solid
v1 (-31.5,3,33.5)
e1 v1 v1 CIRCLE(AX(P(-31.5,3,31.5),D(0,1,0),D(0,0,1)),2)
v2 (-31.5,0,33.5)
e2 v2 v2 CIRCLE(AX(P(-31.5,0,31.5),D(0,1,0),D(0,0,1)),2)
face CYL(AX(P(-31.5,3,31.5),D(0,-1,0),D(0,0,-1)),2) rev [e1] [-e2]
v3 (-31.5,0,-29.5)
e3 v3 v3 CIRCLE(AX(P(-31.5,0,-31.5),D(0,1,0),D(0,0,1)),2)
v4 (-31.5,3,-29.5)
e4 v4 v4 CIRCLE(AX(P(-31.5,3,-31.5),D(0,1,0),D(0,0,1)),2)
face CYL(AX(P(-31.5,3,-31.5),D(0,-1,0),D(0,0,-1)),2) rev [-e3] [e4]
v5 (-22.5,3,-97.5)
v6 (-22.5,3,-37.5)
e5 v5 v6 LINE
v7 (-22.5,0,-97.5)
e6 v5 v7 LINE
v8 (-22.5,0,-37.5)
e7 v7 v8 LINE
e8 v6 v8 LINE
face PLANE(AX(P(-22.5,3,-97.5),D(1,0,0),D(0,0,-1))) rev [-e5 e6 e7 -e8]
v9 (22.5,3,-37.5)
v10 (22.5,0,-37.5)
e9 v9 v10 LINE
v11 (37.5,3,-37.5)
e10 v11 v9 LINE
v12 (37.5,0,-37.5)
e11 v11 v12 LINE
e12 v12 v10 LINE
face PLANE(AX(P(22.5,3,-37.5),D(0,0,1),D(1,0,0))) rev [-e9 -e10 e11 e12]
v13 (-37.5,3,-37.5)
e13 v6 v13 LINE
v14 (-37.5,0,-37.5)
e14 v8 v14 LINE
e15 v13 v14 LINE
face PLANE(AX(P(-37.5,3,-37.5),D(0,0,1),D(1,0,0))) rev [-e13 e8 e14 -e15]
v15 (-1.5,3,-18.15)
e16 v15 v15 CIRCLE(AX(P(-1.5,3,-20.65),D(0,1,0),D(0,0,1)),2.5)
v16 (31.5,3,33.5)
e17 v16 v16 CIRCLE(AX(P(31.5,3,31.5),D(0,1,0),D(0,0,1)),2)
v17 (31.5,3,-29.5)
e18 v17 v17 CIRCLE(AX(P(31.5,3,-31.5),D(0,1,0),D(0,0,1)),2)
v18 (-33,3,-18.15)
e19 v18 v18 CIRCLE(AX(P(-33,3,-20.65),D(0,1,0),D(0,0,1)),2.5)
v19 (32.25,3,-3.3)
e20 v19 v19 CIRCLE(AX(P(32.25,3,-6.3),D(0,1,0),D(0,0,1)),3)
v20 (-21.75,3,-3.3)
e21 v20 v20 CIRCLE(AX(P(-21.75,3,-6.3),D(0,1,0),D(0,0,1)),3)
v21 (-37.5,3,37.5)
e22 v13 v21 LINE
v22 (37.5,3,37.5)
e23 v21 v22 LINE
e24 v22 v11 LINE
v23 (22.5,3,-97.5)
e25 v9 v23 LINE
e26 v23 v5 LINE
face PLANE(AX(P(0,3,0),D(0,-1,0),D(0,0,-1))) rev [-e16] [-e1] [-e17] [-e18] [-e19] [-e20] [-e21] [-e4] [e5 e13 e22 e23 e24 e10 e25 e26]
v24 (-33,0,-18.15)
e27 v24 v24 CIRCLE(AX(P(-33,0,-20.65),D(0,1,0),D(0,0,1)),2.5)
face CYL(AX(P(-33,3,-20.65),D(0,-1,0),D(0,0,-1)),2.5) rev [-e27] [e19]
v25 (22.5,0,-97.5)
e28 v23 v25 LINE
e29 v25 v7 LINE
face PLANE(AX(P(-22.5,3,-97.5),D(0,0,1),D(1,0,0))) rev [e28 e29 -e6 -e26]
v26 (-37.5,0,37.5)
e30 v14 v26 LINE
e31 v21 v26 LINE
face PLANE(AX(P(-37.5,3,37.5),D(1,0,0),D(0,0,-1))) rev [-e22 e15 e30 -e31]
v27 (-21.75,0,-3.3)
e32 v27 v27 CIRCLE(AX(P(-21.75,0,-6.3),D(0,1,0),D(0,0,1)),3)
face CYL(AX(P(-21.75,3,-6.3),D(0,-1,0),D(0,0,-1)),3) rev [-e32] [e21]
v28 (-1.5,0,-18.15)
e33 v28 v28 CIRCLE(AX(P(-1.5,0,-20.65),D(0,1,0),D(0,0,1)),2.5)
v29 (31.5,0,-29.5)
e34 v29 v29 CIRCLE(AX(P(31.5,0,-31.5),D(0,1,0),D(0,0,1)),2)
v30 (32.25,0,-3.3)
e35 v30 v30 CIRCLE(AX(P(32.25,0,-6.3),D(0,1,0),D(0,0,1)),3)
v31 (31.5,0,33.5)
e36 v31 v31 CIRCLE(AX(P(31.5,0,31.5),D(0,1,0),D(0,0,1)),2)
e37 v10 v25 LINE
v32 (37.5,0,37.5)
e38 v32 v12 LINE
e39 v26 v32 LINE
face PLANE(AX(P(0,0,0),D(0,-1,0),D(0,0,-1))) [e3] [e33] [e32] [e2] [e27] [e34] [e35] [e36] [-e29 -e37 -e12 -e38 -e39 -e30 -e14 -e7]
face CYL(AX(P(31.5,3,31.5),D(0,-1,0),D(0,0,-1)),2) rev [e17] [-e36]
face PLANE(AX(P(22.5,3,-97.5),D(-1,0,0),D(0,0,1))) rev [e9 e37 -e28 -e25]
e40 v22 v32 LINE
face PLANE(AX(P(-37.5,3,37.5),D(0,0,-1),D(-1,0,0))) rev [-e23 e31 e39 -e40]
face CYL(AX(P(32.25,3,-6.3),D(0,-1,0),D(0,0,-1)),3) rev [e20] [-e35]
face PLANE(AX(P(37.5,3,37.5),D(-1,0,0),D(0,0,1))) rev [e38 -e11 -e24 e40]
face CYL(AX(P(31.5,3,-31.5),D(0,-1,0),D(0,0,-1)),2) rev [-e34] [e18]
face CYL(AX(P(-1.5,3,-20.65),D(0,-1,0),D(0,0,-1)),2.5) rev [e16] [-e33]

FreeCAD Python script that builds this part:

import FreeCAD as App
import Part
import Sketcher

doc = App.newDocument("Part")
body = doc.addObject("PartDesign::Body", "Body")

sketch1 = body.newObject("Sketcher::SketchObject", "Sketch")
sketch1.AttachmentSupport = (doc.getObject("XZ_Plane"), [""])
sketch1.MapMode = "FlatFace"
sketch1.addGeometry([
    Part.LineSegment(App.Vector(37.5, -37.5, 0), App.Vector(22.5, -37.5, 0)),
    Part.LineSegment(App.Vector(22.5, -37.5, 0), App.Vector(22.5, -97.5, 0)),
    Part.LineSegment(App.Vector(22.5, -97.5, 0), App.Vector(-22.5, -97.5, 0)),
    Part.LineSegment(App.Vector(-22.5, -97.5, 0), App.Vector(-22.5, -37.5, 0)),
    Part.LineSegment(App.Vector(-22.5, -37.5, 0), App.Vector(-37.5, -37.5, 0)),
    Part.LineSegment(App.Vector(-37.5, -37.5, 0), App.Vector(-37.5, 37.5, 0)),
    Part.LineSegment(App.Vector(-37.5, 37.5, 0), App.Vector(37.5, 37.5, 0)),
    Part.LineSegment(App.Vector(37.5, 37.5, 0), App.Vector(37.5, -37.5, 0)),
    Part.Circle(App.Vector(31.5, 31.5, 0), App.Vector(0, 0, 1), 2),
    Part.Circle(App.Vector(-31.5, 31.5, 0), App.Vector(0, 0, 1), 2),
    Part.Circle(App.Vector(32.2, -6.3, 0), App.Vector(0, 0, 1), 3),
    Part.Circle(App.Vector(31.5, -31.5, 0), App.Vector(0, 0, 1), 2),
    Part.Circle(App.Vector(-21.8, -6.3, 0), App.Vector(0, 0, 1), 3),
    Part.Circle(App.Vector(-1.5, -20.6, 0), App.Vector(0, 0, 1), 2.5),
    Part.Circle(App.Vector(-33, -20.6, 0), App.Vector(0, 0, 1), 2.5),
    Part.Circle(App.Vector(-31.5, -31.5, 0), App.Vector(0, 0, 1), 2),
], False)
sketch1.addConstraint([
    Sketcher.Constraint("Coincident", 0, 2, 1, 1),
    Sketcher.Constraint("Coincident", 1, 2, 2, 1),
    Sketcher.Constraint("Coincident", 2, 2, 3, 1),
    Sketcher.Constraint("Coincident", 3, 2, 4, 1),
    Sketcher.Constraint("Coincident", 4, 2, 5, 1),
    Sketcher.Constraint("Coincident", 5, 2, 6, 1),
    Sketcher.Constraint("Coincident", 6, 2, 7, 1),
    Sketcher.Constraint("Coincident", 7, 2, 0, 1),
    Sketcher.Constraint("Horizontal", 0),
    Sketcher.Constraint("Vertical", 1),
    Sketcher.Constraint("Horizontal", 2),
    Sketcher.Constraint("Vertical", 3),
    Sketcher.Constraint("Horizontal", 4),
    Sketcher.Constraint("Vertical", 5),
    Sketcher.Constraint("Horizontal", 6),
    Sketcher.Constraint("Vertical", 7),
    Sketcher.Constraint("Equal", 8, 9),
    Sketcher.Constraint("Equal", 9, 11),
    Sketcher.Constraint("Equal", 10, 12),
    Sketcher.Constraint("Equal", 13, 14),
    Sketcher.Constraint("Equal", 11, 15),
    Sketcher.Constraint("Symmetric", 9, 3, 11, 3, -1, 1),
    Sketcher.Constraint("Symmetric", 8, 3, 15, 3, -1, 1),
    Sketcher.Constraint("Symmetric", 4, 2, 6, 2, -1, 1),
    Sketcher.Constraint("Symmetric", 8, 3, 9, 3, -2),
    Sketcher.Constraint("Symmetric", 0, 2, 3, 2, -2),
    Sketcher.Constraint("Horizontal", 10, 3, 12, 3),
    Sketcher.Constraint("Horizontal", 13, 3, 14, 3),
    Sketcher.Constraint("Equal", 6, 5),
    Sketcher.Constraint("Diameter", 8, 4.0),
    Sketcher.Constraint("Diameter", 10, 6.0),
    Sketcher.Constraint("Diameter", 13, 5.0),
    Sketcher.Constraint("DistanceX", 0, 2, 0, 1, 15.0),
    Sketcher.Constraint("DistanceX", 2, 2, 2, 1, 45.0),
    Sketcher.Constraint("DistanceY", 1, 2, 1, 1, 60.0),
    Sketcher.Constraint("DistanceX", 14, 3, -1, 1, 33.0),
    Sketcher.Constraint("DistanceX", 9, 3, 8, 3, 63.0),
    Sketcher.Constraint("DistanceY", 11, 3, 8, 3, 63.0),
    Sketcher.Constraint("DistanceX", 12, 3, 10, 3, 54.0),
    Sketcher.Constraint("DistanceX", 13, 3, 11, 3, 33.0),
    Sketcher.Constraint("DistanceY", 10, 3, -1, 1, 6.3),
    Sketcher.Constraint("DistanceX", -1, 1, 10, 3, 32.25),
    Sketcher.Constraint("DistanceY", 13, 3, -1, 1, 20.65),
])
pad1 = body.newObject("PartDesign::Pad", "Pad")
pad1.Profile = sketch1
pad1.Length = 3
pad1.Reversed = True

doc.recompute()
